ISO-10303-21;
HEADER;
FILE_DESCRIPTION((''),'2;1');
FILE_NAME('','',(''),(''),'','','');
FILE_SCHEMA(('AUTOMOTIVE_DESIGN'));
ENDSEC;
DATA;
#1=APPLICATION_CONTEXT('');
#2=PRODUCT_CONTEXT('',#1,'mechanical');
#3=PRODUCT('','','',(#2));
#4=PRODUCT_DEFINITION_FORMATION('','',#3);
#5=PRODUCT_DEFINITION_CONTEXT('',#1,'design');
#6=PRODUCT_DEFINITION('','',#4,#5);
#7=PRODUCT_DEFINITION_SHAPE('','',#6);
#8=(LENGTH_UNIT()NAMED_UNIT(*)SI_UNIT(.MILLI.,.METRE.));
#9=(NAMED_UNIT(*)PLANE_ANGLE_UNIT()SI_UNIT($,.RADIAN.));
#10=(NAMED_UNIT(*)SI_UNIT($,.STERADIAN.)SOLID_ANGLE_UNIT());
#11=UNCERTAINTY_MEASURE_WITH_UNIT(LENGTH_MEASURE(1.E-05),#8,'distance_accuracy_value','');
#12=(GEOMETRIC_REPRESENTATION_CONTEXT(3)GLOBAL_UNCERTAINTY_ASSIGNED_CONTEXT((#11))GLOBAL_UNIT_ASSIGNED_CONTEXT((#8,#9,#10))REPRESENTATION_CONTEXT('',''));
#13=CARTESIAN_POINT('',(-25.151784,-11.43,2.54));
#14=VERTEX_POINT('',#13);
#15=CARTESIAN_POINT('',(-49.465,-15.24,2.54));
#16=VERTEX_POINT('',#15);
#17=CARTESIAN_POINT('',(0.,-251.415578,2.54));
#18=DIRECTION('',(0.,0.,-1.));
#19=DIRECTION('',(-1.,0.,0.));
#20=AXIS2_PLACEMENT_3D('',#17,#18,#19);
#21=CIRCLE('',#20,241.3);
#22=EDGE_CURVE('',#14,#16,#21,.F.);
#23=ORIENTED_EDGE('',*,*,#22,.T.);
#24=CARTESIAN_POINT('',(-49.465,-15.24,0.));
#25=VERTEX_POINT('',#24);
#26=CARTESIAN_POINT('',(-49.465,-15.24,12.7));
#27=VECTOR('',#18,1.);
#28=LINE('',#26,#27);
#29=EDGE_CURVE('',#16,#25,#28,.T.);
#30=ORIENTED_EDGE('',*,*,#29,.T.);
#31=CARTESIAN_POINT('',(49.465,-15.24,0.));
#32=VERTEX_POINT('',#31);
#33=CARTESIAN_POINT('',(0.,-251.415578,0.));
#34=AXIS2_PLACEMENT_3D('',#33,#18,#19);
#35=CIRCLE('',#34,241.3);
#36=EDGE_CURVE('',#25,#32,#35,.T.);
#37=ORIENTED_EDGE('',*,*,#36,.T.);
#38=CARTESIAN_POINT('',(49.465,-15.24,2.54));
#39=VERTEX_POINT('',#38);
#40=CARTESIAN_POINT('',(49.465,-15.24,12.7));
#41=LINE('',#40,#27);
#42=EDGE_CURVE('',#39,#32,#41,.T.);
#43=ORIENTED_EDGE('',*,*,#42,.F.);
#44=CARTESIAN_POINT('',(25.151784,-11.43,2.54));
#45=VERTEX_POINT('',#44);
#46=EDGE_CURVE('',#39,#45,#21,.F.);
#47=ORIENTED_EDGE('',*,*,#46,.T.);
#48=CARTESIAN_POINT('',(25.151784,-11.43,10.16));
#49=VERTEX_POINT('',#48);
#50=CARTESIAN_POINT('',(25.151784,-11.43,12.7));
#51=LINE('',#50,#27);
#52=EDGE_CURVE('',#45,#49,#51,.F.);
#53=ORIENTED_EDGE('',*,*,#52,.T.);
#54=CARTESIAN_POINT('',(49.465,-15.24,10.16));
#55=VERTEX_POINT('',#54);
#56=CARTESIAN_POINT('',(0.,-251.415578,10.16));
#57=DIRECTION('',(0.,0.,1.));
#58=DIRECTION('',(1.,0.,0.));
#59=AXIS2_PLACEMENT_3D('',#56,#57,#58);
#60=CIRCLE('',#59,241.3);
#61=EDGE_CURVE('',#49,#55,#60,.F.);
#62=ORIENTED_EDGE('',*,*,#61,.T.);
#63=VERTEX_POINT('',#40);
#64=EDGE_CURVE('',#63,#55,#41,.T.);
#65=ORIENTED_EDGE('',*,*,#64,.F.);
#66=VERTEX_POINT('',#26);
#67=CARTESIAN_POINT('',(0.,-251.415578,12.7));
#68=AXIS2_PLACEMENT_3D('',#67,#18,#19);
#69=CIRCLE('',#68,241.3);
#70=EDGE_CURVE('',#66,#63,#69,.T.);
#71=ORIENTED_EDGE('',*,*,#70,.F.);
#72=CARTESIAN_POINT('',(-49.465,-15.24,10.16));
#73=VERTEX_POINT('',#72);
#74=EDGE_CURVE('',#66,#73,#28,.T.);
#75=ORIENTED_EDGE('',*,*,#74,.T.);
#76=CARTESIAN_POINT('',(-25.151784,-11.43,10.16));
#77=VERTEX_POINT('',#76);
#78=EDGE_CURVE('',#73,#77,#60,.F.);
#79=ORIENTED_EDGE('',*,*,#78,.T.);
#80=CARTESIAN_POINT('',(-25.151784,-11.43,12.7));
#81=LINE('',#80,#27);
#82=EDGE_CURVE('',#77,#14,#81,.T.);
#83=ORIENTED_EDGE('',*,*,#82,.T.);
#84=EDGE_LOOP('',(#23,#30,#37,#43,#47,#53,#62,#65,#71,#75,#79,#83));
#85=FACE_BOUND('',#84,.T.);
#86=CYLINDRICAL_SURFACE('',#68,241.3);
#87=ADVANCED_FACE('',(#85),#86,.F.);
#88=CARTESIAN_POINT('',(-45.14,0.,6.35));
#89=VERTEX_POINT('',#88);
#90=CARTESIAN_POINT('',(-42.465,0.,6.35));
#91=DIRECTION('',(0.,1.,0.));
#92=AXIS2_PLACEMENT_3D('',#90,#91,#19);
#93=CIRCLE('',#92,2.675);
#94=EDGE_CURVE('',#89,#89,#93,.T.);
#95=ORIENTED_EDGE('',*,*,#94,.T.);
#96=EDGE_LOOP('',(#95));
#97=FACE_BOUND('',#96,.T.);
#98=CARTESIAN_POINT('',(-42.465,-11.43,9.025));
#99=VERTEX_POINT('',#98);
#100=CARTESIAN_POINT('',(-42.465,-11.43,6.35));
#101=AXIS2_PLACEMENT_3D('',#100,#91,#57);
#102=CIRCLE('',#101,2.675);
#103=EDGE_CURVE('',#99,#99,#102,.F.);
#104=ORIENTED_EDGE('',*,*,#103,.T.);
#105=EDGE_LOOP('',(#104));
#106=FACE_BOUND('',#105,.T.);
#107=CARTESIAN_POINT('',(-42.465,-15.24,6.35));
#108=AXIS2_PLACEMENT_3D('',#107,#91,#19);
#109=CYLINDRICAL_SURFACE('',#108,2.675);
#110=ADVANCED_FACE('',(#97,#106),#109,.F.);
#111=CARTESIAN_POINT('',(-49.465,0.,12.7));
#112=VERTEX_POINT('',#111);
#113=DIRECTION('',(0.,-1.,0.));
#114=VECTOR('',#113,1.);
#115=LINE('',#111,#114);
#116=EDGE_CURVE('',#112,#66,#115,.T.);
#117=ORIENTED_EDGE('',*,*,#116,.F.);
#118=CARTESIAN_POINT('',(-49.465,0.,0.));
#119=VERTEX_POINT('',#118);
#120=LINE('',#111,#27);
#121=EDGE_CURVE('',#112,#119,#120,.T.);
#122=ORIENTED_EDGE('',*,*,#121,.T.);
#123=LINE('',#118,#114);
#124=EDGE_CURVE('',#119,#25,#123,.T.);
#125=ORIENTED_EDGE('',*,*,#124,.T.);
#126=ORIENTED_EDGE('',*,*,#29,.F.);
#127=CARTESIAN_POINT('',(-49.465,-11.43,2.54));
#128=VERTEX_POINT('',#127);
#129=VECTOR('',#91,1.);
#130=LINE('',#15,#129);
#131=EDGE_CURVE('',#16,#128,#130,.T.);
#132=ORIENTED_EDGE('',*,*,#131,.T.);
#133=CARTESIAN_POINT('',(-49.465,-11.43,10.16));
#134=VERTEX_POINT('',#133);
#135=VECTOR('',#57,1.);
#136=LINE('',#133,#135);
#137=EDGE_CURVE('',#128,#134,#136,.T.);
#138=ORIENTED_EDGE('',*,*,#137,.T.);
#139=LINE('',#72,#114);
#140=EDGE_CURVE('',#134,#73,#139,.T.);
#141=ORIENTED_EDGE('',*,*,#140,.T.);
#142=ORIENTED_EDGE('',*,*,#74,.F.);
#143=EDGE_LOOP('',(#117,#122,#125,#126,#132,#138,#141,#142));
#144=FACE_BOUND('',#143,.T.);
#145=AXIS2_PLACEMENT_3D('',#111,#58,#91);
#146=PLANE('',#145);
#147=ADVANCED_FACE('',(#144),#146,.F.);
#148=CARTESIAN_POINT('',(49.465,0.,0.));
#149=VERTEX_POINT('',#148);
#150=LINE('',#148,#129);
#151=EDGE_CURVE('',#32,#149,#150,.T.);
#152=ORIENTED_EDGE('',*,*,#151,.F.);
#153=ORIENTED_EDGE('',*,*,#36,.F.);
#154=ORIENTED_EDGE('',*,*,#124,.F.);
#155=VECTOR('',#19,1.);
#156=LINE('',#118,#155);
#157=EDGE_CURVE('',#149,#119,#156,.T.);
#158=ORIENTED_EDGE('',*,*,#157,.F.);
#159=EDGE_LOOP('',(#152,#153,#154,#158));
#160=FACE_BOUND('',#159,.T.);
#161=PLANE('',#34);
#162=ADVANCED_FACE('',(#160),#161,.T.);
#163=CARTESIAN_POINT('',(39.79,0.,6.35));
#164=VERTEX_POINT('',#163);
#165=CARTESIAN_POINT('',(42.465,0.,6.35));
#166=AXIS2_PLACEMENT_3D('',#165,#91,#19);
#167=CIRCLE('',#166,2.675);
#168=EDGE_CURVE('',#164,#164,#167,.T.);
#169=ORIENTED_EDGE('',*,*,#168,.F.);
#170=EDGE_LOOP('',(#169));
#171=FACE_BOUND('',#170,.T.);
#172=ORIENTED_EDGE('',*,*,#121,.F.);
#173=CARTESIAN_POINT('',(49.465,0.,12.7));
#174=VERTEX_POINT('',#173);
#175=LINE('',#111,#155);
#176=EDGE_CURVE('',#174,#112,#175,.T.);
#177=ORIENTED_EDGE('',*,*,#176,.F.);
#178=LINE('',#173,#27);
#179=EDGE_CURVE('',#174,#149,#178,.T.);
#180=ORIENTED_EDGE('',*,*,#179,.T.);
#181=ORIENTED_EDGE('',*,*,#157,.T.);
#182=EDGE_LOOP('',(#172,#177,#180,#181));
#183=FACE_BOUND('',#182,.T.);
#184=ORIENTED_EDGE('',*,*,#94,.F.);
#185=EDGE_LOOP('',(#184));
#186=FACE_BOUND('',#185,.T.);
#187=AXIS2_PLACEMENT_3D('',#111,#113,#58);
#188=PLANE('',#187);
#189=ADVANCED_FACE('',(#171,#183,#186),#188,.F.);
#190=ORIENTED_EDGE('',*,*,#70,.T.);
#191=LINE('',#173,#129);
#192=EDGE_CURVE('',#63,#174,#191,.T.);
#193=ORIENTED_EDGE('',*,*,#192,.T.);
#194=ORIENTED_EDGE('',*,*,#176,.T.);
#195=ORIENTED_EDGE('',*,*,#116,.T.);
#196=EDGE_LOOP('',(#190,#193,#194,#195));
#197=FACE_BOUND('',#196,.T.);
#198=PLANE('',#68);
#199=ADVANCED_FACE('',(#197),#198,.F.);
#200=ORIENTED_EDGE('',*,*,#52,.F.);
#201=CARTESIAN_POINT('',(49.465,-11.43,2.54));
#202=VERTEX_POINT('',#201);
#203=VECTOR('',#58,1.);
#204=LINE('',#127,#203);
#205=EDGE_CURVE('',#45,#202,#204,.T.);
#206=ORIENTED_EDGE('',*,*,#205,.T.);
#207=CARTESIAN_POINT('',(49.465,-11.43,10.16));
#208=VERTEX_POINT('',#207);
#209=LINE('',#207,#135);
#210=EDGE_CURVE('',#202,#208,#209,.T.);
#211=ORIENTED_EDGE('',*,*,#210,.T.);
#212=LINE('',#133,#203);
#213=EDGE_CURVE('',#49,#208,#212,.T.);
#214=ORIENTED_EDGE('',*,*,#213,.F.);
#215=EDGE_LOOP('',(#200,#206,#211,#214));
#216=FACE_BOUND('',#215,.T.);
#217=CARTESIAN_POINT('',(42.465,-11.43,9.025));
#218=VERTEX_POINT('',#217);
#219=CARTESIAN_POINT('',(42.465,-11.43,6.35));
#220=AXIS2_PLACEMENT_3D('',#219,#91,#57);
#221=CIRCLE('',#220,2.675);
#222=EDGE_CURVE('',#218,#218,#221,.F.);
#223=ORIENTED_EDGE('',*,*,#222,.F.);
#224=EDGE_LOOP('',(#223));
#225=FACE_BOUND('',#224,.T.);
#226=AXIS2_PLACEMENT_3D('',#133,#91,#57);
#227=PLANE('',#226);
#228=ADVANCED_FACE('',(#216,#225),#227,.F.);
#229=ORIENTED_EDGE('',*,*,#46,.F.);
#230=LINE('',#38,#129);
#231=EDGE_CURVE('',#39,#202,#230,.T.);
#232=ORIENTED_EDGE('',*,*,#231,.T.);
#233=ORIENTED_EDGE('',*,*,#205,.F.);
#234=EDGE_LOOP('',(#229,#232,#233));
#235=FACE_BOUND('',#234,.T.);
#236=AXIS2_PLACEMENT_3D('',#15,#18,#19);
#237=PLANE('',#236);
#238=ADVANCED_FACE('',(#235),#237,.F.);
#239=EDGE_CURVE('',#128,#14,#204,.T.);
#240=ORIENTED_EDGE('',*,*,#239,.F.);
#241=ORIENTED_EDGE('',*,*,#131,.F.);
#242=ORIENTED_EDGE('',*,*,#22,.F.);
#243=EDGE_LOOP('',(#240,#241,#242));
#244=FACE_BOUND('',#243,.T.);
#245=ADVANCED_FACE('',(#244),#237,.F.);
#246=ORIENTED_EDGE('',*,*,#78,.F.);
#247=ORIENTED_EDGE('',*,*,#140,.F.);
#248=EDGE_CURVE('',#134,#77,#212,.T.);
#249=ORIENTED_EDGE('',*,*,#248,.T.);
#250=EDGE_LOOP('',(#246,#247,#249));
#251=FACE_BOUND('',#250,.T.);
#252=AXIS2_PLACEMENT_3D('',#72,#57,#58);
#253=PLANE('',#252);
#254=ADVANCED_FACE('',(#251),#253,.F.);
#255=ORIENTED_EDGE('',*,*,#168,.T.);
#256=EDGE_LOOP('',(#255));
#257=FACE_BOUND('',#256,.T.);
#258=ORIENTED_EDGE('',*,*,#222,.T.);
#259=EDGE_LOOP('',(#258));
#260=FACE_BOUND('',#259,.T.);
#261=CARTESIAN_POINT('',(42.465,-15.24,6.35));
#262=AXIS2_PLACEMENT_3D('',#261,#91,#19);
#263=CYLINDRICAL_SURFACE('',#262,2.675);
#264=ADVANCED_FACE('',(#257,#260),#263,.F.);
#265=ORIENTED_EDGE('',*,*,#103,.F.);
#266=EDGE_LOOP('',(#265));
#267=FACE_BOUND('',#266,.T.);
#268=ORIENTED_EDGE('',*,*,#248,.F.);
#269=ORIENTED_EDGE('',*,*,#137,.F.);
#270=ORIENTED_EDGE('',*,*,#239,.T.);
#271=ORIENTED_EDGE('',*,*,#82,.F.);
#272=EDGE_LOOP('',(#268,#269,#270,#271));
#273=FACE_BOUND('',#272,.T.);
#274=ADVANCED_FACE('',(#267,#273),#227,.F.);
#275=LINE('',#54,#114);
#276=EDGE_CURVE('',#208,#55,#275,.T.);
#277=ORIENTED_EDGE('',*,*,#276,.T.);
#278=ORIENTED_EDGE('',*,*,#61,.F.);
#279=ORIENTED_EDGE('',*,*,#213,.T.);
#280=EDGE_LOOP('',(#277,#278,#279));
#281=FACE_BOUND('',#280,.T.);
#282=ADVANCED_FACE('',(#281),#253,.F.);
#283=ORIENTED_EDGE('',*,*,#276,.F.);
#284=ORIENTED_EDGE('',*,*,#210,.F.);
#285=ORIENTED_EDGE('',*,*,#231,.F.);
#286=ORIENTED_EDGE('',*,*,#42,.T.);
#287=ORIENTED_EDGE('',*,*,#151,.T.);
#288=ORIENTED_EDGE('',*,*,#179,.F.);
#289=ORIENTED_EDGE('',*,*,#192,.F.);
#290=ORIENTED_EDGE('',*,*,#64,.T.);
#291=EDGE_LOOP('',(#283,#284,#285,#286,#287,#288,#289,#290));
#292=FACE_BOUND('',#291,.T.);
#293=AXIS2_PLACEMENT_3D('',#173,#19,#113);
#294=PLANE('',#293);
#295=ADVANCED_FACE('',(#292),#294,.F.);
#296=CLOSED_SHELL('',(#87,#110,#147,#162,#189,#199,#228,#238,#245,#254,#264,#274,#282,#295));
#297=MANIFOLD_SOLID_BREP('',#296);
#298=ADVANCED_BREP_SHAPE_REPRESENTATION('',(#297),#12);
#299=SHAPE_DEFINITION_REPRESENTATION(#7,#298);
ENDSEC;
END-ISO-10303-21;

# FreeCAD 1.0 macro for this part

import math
import FreeCAD as App
import Part
import Sketcher
Q = App.Units.Quantity

doc = App.newDocument("Part")
body = doc.addObject("PartDesign::Body", "Body")

# Sketch on XY plane
sketch1 = body.newObject("Sketcher::SketchObject", "Sketch")
sketch1.AttachmentSupport = (doc.getObject("XY_Plane"), [""])
sketch1.MapMode = "FlatFace"
sketch1.addGeometry([
    Part.LineSegment(App.Vector(49, 0, 0), App.Vector(-49, 0, 0)),
    Part.LineSegment(App.Vector(-49, 0, 0), App.Vector(-49, -15, 0)),
    Part.ArcOfCircle(Part.Circle(App.Vector(0, -251, 0), App.Vector(0, 0, 1), 241), math.radians(78), math.radians(102)),
    Part.LineSegment(App.Vector(49, -15, 0), App.Vector(49, 0, 0)),
], False)
sketch1.addConstraint([
    Sketcher.Constraint("Coincident", 0, 2, 1, 1),
    Sketcher.Constraint("Coincident", 1, 2, 2, 2),
    Sketcher.Constraint("Coincident", 2, 1, 3, 1),
    Sketcher.Constraint("Coincident", 3, 2, 0, 1),
    Sketcher.Constraint("Horizontal", 0),
    Sketcher.Constraint("Vertical", 1),
    Sketcher.Constraint("Vertical", 3),
    Sketcher.Constraint("Symmetric", 0, 2, 3, 2, -1, 1),
    Sketcher.Constraint("PointOnObject", 2, 3, -2),
    Sketcher.Constraint("Radius", 2, Q("9.5 in")),
    Sketcher.Constraint("DistanceY", 1, 2, 1, 1, Q("0.6 in")),
    Sketcher.Constraint("DistanceX", 0, 2, 0, 1, Q("98.93 mm")),
])
pad1 = body.newObject("PartDesign::Pad", "Pad")
pad1.Profile = sketch1
pad1.Length = Q("0.5 in")

# Sketch on XZ plane
sketch2 = body.newObject("Sketcher::SketchObject", "Sketch001")
sketch2.AttachmentSupport = (doc.getObject("XZ_Plane"), [""])
sketch2.MapMode = "FlatFace"
sketch2.addGeometry([
    Part.Circle(App.Vector(-42.5, 6.3, 0), App.Vector(0, 0, 1), 2.7),
    Part.Circle(App.Vector(42.5, 6.3, 0), App.Vector(0, 0, 1), 2.7),
], False)
sketch2.addConstraint([
    Sketcher.Constraint("Equal", 0, 1),
    Sketcher.Constraint("Symmetric", 0, 3, 1, 3, -2),
    Sketcher.Constraint("Diameter", 0, Q("5.35 mm")),
    Sketcher.Constraint("DistanceY", -1, 1, 0, 3, Q("0.25 in")),
    Sketcher.Constraint("DistanceX", 0, 3, -1, 1, Q("42.465 mm")),
])
pocket1 = body.newObject("PartDesign::Pocket", "Pocket")
pocket1.Profile = sketch2
pocket1.Type = "ThroughAll"
pocket1.Reversed = True

# Sketch on YZ plane
sketch3 = body.newObject("Sketcher::SketchObject", "Sketch002")
sketch3.AttachmentSupport = (doc.getObject("YZ_Plane"), [""])
sketch3.MapMode = "FlatFace"
sketch3.AttachmentOffset = App.Placement(App.Vector(0, 0, 49.465), App.Rotation())
sketch3.addGeometry([
    Part.LineSegment(App.Vector(-11.4, 10.2, 0), App.Vector(-15.2, 10.2, 0)),
    Part.LineSegment(App.Vector(-15.2, 10.2, 0), App.Vector(-15.2, 2.5, 0)),
    Part.LineSegment(App.Vector(-15.2, 2.5, 0), App.Vector(-11.4, 2.5, 0)),
    Part.LineSegment(App.Vector(-11.4, 2.5, 0), App.Vector(-11.4, 10.2, 0)),
], False)
sketch3.addConstraint([
    Sketcher.Constraint("Coincident", 0, 2, 1, 1),
    Sketcher.Constraint("Coincident", 1, 2, 2, 1),
    Sketcher.Constraint("Coincident", 2, 2, 3, 1),
    Sketcher.Constraint("Coincident", 3, 2, 0, 1),
    Sketcher.Constraint("Horizontal", 0),
    Sketcher.Constraint("Vertical", 1),
    Sketcher.Constraint("Horizontal", 2),
    Sketcher.Constraint("Vertical", 3),
    Sketcher.Constraint("DistanceY", 1, 2, 1, 1, Q("0.3 in")),
    Sketcher.Constraint("DistanceX", 0, 2, 0, 1, Q("0.15 in")),
    Sketcher.Constraint("DistanceX", 0, 2, -1, 1, Q("0.6 in")),
    Sketcher.Constraint("DistanceY", -1, 1, 0, 2, Q("0.4 in")),
])
pocket2 = body.newObject("PartDesign::Pocket", "Pocket001")
pocket2.Profile = sketch3
pocket2.Type = "ThroughAll"

doc.recompute()
